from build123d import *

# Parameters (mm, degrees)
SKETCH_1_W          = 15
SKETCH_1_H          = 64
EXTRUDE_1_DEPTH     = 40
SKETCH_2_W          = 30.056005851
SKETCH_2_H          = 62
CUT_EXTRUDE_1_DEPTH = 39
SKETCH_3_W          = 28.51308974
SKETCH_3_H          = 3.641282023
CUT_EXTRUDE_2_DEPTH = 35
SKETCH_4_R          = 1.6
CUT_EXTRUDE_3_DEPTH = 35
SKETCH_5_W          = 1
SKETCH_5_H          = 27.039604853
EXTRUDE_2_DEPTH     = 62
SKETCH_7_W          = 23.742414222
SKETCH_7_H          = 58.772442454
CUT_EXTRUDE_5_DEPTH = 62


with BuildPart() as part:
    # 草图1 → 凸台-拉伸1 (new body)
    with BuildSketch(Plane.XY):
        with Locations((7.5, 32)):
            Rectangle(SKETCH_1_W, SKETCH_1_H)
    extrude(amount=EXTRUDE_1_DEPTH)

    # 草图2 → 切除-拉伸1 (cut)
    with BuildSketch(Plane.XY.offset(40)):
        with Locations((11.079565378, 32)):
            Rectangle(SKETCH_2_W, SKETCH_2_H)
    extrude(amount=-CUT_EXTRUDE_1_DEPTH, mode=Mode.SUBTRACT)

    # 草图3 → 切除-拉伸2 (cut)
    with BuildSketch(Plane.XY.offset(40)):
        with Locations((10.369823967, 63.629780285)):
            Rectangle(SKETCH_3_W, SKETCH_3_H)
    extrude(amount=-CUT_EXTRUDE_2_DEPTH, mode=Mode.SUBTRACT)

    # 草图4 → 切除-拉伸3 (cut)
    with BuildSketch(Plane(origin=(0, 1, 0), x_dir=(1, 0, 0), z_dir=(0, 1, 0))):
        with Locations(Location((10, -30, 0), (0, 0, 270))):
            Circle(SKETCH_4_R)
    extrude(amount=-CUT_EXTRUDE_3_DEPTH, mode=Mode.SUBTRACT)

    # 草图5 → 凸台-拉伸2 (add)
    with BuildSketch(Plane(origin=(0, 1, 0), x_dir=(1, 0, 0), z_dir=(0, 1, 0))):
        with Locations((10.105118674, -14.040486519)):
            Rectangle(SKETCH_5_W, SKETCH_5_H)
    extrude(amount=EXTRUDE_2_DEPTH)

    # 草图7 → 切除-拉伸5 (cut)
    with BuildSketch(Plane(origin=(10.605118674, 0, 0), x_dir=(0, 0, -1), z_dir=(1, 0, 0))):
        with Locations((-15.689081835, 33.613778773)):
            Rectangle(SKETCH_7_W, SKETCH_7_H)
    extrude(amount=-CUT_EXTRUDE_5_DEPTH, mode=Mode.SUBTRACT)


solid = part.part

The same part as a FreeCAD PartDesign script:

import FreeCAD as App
import Part
import Sketcher

V = App.Vector
Q = App.Units.Quantity


def add_polygon(sketch, points):
    """Adds a closed chain of lines whose ends are joined by coincident constraints."""
    first, n = sketch.GeometryCount, len(points)
    for a, b in zip(points, points[1:] + points[:1]):
        sketch.addGeometry(Part.LineSegment(App.Vector(*a, 0), App.Vector(*b, 0)), False)
    for i in range(n):
        sketch.addConstraint(Sketcher.Constraint("Coincident", first + i, 2, first + (i + 1) % n, 1))

doc = App.newDocument("Part")
body = doc.addObject("PartDesign::Body", "Body")

# Sketch on XY plane
sketch1 = body.newObject("Sketcher::SketchObject", "Sketch")
sketch1.AttachmentSupport = (doc.getObject("XY_Plane"), [""])
sketch1.MapMode = "FlatFace"
add_polygon(sketch1, [(0, 64), (0, 0), (15, 0), (15, 64)])  # lines 0-3
sketch1.addConstraint(Sketcher.Constraint("Vertical", 0))
sketch1.addConstraint(Sketcher.Constraint("Horizontal", 1))
sketch1.addConstraint(Sketcher.Constraint("Vertical", 2))
sketch1.addConstraint(Sketcher.Constraint("Horizontal", 3))
sketch1.addConstraint(Sketcher.Constraint("Coincident", 0, 2, -1, 1))
sketch1.addConstraint(Sketcher.Constraint("DistanceX", 1, 1, 1, 2, Q("15 mm")))
sketch1.addConstraint(Sketcher.Constraint("DistanceY", 0, 2, 0, 1, Q("64 mm")))
pad1 = body.newObject("PartDesign::Pad", "Pad")
pad1.Profile = sketch1
pad1.Length = 40

# Sketch on XY plane
sketch2 = body.newObject("Sketcher::SketchObject", "Sketch001")
sketch2.AttachmentSupport = (doc.getObject("XY_Plane"), [""])
sketch2.MapMode = "FlatFace"
sketch2.AttachmentOffset = App.Placement(V(0, 0, 40), App.Rotation())
add_polygon(sketch2, [(-4, 63), (-4, 1), (26, 1), (26, 63)])  # lines 0-3
sketch2.addConstraint(Sketcher.Constraint("Vertical", 0))
sketch2.addConstraint(Sketcher.Constraint("Horizontal", 1))
sketch2.addConstraint(Sketcher.Constraint("Vertical", 2))
sketch2.addConstraint(Sketcher.Constraint("Horizontal", 3))
sketch2.addConstraint(Sketcher.Constraint("DistanceY", 0, 2, 0, 1, Q("62 mm")))
sketch2.addConstraint(Sketcher.Constraint("DistanceY", -1, 1, 0, 2, Q("1 mm")))
sketch2.addConstraint(Sketcher.Constraint("DistanceX", 1, 1, 1, 2, Q("30.056006 mm")))
sketch2.addConstraint(Sketcher.Constraint("DistanceX", -1, 1, 1, 2, Q("26.107568 mm")))
pocket1 = body.newObject("PartDesign::Pocket", "Pocket")
pocket1.Profile = sketch2
pocket1.Length = 39

# Sketch on XY plane
sketch3 = body.newObject("Sketcher::SketchObject", "Sketch002")
sketch3.AttachmentSupport = (doc.getObject("XY_Plane"), [""])
sketch3.MapMode = "FlatFace"
sketch3.AttachmentOffset = App.Placement(V(0, 0, 40), App.Rotation())
add_polygon(sketch3, [(-3.9, 65.5), (-3.9, 61.8), (24.6, 61.8), (24.6, 65.5)])  # lines 0-3
sketch3.addConstraint(Sketcher.Constraint("Vertical", 0))
sketch3.addConstraint(Sketcher.Constraint("Horizontal", 1))
sketch3.addConstraint(Sketcher.Constraint("Vertical", 2))
sketch3.addConstraint(Sketcher.Constraint("Horizontal", 3))
sketch3.addConstraint(Sketcher.Constraint("DistanceX", 1, 1, 1, 2, Q("28.51309 mm")))
sketch3.addConstraint(Sketcher.Constraint("DistanceY", 0, 2, 0, 1, Q("3.641282 mm")))
sketch3.addConstraint(Sketcher.Constraint("DistanceX", 0, 2, -1, 1, Q("3.886721 mm")))
sketch3.addConstraint(Sketcher.Constraint("DistanceY", -1, 1, 0, 2, Q("61.809139 mm")))
pocket2 = body.newObject("PartDesign::Pocket", "Pocket001")
pocket2.Profile = sketch3
pocket2.Length = 35

# Sketch on XZ plane
sketch4 = body.newObject("Sketcher::SketchObject", "Sketch003")
sketch4.AttachmentSupport = (doc.getObject("XZ_Plane"), [""])
sketch4.MapMode = "FlatFace"
sketch4.AttachmentOffset = App.Placement(V(0, 0, -1), App.Rotation())
sketch4.addGeometry(Part.Circle(V(10, 30, 0), V(0, 0, 1), 1.6), False)
sketch4.addConstraint(Sketcher.Constraint("Diameter", 0, Q("3.2 mm")))
sketch4.addConstraint(Sketcher.Constraint("DistanceX", -1, 1, 0, 3, Q("10 mm")))
sketch4.addConstraint(Sketcher.Constraint("DistanceY", -1, 1, 0, 3, Q("30 mm")))
pocket3 = body.newObject("PartDesign::Pocket", "Pocket002")
pocket3.Profile = sketch4
pocket3.Length = 35
pocket3.Reversed = True

# Sketch on XZ plane
sketch5 = body.newObject("Sketcher::SketchObject", "Sketch004")
sketch5.AttachmentSupport = (doc.getObject("XZ_Plane"), [""])
sketch5.MapMode = "FlatFace"
sketch5.AttachmentOffset = App.Placement(V(0, 0, -1), App.Rotation())
add_polygon(sketch5, [(9.6, 0.5), (9.6, 27.6), (10.6, 27.6), (10.6, 0.5)])  # lines 0-3
sketch5.addConstraint(Sketcher.Constraint("Vertical", 0))
sketch5.addConstraint(Sketcher.Constraint("Horizontal", 1))
sketch5.addConstraint(Sketcher.Constraint("Vertical", 2))
sketch5.addConstraint(Sketcher.Constraint("Horizontal", 3))
sketch5.addConstraint(Sketcher.Constraint("DistanceX", 1, 1, 1, 2, Q("1 mm")))
sketch5.addConstraint(Sketcher.Constraint("DistanceY", 0, 1, 0, 2, Q("27.039605 mm")))
sketch5.addConstraint(Sketcher.Constraint("DistanceX", -1, 1, 0, 2, Q("9.605119 mm")))
sketch5.addConstraint(Sketcher.Constraint("DistanceY", -1, 1, 0, 2, Q("27.560289 mm")))
pad2 = body.newObject("PartDesign::Pad", "Pad001")
pad2.Profile = sketch5
pad2.Length = 62
pad2.Reversed = True

# Sketch on YZ plane
sketch6 = body.newObject("Sketcher::SketchObject", "Sketch005")
sketch6.AttachmentSupport = (doc.getObject("YZ_Plane"), [""])
sketch6.MapMode = "FlatFace"
sketch6.AttachmentOffset = App.Placement(V(0, 0, 10.605119), App.Rotation())
add_polygon(sketch6, [(63, 28), (4, 28), (4, 4), (63, 4)])  # lines 0-3
sketch6.addConstraint(Sketcher.Constraint("Horizontal", 0))
sketch6.addConstraint(Sketcher.Constraint("Vertical", 1))
sketch6.addConstraint(Sketcher.Constraint("Horizontal", 2))
sketch6.addConstraint(Sketcher.Constraint("Vertical", 3))
sketch6.addConstraint(Sketcher.Constraint("DistanceX", -1, 1, 2, 2, Q("63 mm")))
sketch6.addConstraint(Sketcher.Constraint("DistanceX", 0, 2, 0, 1, Q("58.772442 mm")))
sketch6.addConstraint(Sketcher.Constraint("DistanceY", 1, 2, 1, 1, Q("23.742414 mm")))
sketch6.addConstraint(Sketcher.Constraint("DistanceY", -1, 1, 0, 2, Q("27.560289 mm")))
pocket4 = body.newObject("PartDesign::Pocket", "Pocket003")
pocket4.Profile = sketch6
pocket4.Length = 62

doc.recompute()
